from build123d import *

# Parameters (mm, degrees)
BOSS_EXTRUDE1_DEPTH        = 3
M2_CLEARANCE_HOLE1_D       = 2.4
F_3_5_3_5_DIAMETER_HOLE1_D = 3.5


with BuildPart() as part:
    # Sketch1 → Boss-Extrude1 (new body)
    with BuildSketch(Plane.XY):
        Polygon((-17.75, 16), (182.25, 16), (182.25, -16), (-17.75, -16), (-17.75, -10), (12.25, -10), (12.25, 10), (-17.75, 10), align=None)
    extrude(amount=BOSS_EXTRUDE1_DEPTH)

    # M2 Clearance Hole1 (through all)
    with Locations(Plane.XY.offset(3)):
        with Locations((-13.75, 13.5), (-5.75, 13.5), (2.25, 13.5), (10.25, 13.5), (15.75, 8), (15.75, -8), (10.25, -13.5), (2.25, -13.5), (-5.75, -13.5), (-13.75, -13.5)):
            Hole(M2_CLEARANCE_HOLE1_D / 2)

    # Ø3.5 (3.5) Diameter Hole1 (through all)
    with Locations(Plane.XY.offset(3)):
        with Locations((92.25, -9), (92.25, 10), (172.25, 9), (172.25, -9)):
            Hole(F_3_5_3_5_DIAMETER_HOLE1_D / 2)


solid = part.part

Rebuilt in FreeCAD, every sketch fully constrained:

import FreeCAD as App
import Part
import Sketcher
Q = App.Units.Quantity


def add_polygon(sketch, points):
    """Adds a closed chain of lines whose ends are joined by coincident constraints."""
    first, n = sketch.GeometryCount, len(points)
    for a, b in zip(points, points[1:] + points[:1]):
        sketch.addGeometry(Part.LineSegment(App.Vector(*a, 0), App.Vector(*b, 0)), False)
    for i in range(n):
        sketch.addConstraint(Sketcher.Constraint("Coincident", first + i, 2, first + (i + 1) % n, 1))

doc = App.newDocument("Part")
params = doc.addObject("Spreadsheet::Sheet", "Params")
for row, (alias, value) in enumerate([
    ("sketch1_width", "200 mm"),
    ("sketch1_width2", "30 mm"),
    ("sketch1_height", "6 mm"),
    ("sketch1_height2", "20 mm"),
    ("pad1_length", "3 mm"),
    ("sketch2_diameter", "2.4 mm"),
    ("hole_diameter", "2.4 mm"),
    ("sketch3_diameter", "3.5 mm"),
    ("hole2_diameter", "3.5 mm"),
], start=1):
    params.set(f"A{row}", alias)
    params.set(f"B{row}", "=" + value)
    params.setAlias(f"B{row}", alias)

body = doc.addObject("PartDesign::Body", "Body")

# Sketch on XY plane
sketch1 = doc.addObject("Sketcher::SketchObject", "Sketch")
body.addObject(sketch1)
sketch1.AttachmentSupport = (doc.XY_Plane, [""])
sketch1.MapMode = "FlatFace"
add_polygon(sketch1, [(182, 16), (-18, 16), (-18, 10), (12, 10), (12, -10), (-18, -10), (-18, -16), (182, -16)])  # lines 0-7
sketch1.addConstraint([
    Sketcher.Constraint("Horizontal", 0),
    Sketcher.Constraint("Vertical", 1),
    Sketcher.Constraint("Horizontal", 2),
    Sketcher.Constraint("Vertical", 3),
    Sketcher.Constraint("Horizontal", 4),
    Sketcher.Constraint("Vertical", 5),
    Sketcher.Constraint("Horizontal", 6),
    Sketcher.Constraint("Vertical", 7),
    Sketcher.Constraint("Symmetric", 1, 2, 4, 2, -1),
    Sketcher.Constraint("Equal", 1, 5),
    Sketcher.Constraint("DistanceX", 0, 2, 0, 1, Q("200 mm")),
    Sketcher.Constraint("DistanceX", 2, 1, 2, 2, Q("30 mm")),
    Sketcher.Constraint("DistanceY", 1, 2, 1, 1, Q("6 mm")),
    Sketcher.Constraint("DistanceY", 3, 2, 3, 1, Q("20 mm")),
    Sketcher.Constraint("DistanceX", 0, 2, -1, 1, Q("17.75 mm")),
])
sketch1.setExpression("Constraints[18]", "Params.sketch1_width")
sketch1.setExpression("Constraints[19]", "Params.sketch1_width2")
sketch1.setExpression("Constraints[20]", "Params.sketch1_height")
sketch1.setExpression("Constraints[21]", "Params.sketch1_height2")
pad1 = doc.addObject("PartDesign::Pad", "Pad")
body.addObject(pad1)
pad1.Profile = sketch1
pad1.setExpression("Length", "Params.pad1_length")

# Sketch on XY plane
sketch2 = doc.addObject("Sketcher::SketchObject", "Sketch001")
body.addObject(sketch2)
sketch2.AttachmentSupport = (doc.XY_Plane, [""])
sketch2.MapMode = "FlatFace"
sketch2.AttachmentOffset = App.Placement(App.Vector(0, 0, 3), App.Rotation())
sketch2.addGeometry([
    Part.Circle(App.Vector(-13.8, 13.5, 0), App.Vector(0, 0, 1), 1.2),  # 0
    Part.Circle(App.Vector(-5.8, 13.5, 0), App.Vector(0, 0, 1), 1.2),  # 1
    Part.Circle(App.Vector(2.2, 13.5, 0), App.Vector(0, 0, 1), 1.2),  # 2
    Part.Circle(App.Vector(10.2, 13.5, 0), App.Vector(0, 0, 1), 1.2),  # 3
    Part.Circle(App.Vector(15.8, 8, 0), App.Vector(0, 0, 1), 1.2),  # 4
    Part.Circle(App.Vector(15.8, -8, 0), App.Vector(0, 0, 1), 1.2),  # 5
    Part.Circle(App.Vector(10.2, -13.5, 0), App.Vector(0, 0, 1), 1.2),  # 6
    Part.Circle(App.Vector(2.2, -13.5, 0), App.Vector(0, 0, 1), 1.2),  # 7
    Part.Circle(App.Vector(-5.8, -13.5, 0), App.Vector(0, 0, 1), 1.2),  # 8
    Part.Circle(App.Vector(-13.8, -13.5, 0), App.Vector(0, 0, 1), 1.2),  # 9
], False)
sketch2.addConstraint([
    Sketcher.Constraint("Equal", 0, 1),
    Sketcher.Constraint("Equal", 1, 2),
    Sketcher.Constraint("Equal", 2, 3),
    Sketcher.Constraint("Equal", 3, 4),
    Sketcher.Constraint("Equal", 4, 5),
    Sketcher.Constraint("Equal", 5, 6),
    Sketcher.Constraint("Equal", 6, 7),
    Sketcher.Constraint("Equal", 7, 8),
    Sketcher.Constraint("Equal", 8, 9),
    Sketcher.Constraint("Symmetric", 4, 3, 5, 3, -1),
    Sketcher.Constraint("Symmetric", 3, 3, 6, 3, -1),
    Sketcher.Constraint("Symmetric", 2, 3, 7, 3, -1),
    Sketcher.Constraint("Symmetric", 1, 3, 8, 3, -1),
    Sketcher.Constraint("Symmetric", 0, 3, 9, 3, -1),
    Sketcher.Constraint("Horizontal", 0, 3, 1, 3),
    Sketcher.Constraint("Horizontal", 1, 3, 2, 3),
    Sketcher.Constraint("Horizontal", 2, 3, 3, 3),
    Sketcher.Constraint("Diameter", 0, Q("2.4 mm")),
    Sketcher.Constraint("DistanceY", -1, 1, 4, 3, Q("8 mm")),
    Sketcher.Constraint("DistanceX", 0, 3, 1, 3, Q("8 mm")),
    Sketcher.Constraint("DistanceX", 1, 3, 2, 3, Q("8 mm")),
    Sketcher.Constraint("DistanceX", 2, 3, 3, 3, Q("8 mm")),
    Sketcher.Constraint("DistanceY", 6, 3, 3, 3, Q("27 mm")),
    Sketcher.Constraint("DistanceX", 3, 3, 4, 3, Q("5.5 mm")),
    Sketcher.Constraint("DistanceX", 0, 3, -1, 1, Q("13.75 mm")),
])
sketch2.setExpression("Constraints[17]", "Params.sketch2_diameter")
doc.recompute()
hole = doc.addObject("PartDesign::Hole", "Hole")
body.addObject(hole)
hole.Profile = sketch2
hole.ThreadType = "None"
hole.setExpression("Diameter", "Params.hole_diameter")
hole.DepthType = "ThroughAll"

# Sketch on XY plane
sketch3 = doc.addObject("Sketcher::SketchObject", "Sketch002")
body.addObject(sketch3)
sketch3.AttachmentSupport = (doc.XY_Plane, [""])
sketch3.MapMode = "FlatFace"
sketch3.AttachmentOffset = App.Placement(App.Vector(0, 0, 3), App.Rotation())
sketch3.addGeometry([
    Part.Circle(App.Vector(92.2, -9, 0), App.Vector(0, 0, 1), 1.8),
    Part.Circle(App.Vector(92.2, 10, 0), App.Vector(0, 0, 1), 1.8),
    Part.Circle(App.Vector(172.2, 9, 0), App.Vector(0, 0, 1), 1.8),
    Part.Circle(App.Vector(172.2, -9, 0), App.Vector(0, 0, 1), 1.8),
], False)
sketch3.addConstraint([
    Sketcher.Constraint("Equal", 0, 1),
    Sketcher.Constraint("Equal", 1, 2),
    Sketcher.Constraint("Equal", 2, 3),
    Sketcher.Constraint("Symmetric", 2, 3, 3, 3, -1),
    Sketcher.Constraint("Horizontal", 0, 3, 3, 3),
    Sketcher.Constraint("Vertical", 0, 3, 1, 3),
    Sketcher.Constraint("Diameter", 0, Q("3.5 mm")),
    Sketcher.Constraint("DistanceY", 0, 3, -1, 1, Q("9 mm")),
    Sketcher.Constraint("DistanceY", -1, 1, 1, 3, Q("10 mm")),
    Sketcher.Constraint("DistanceX", 1, 3, 2, 3, Q("80 mm")),
    Sketcher.Constraint("DistanceX", -1, 1, 0, 3, Q("92.25 mm")),
])
sketch3.setExpression("Constraints[6]", "Params.sketch3_diameter")
doc.recompute()
hole2 = doc.addObject("PartDesign::Hole", "Hole001")
body.addObject(hole2)
hole2.Profile = sketch3
hole2.ThreadType = "None"
hole2.setExpression("Diameter", "Params.hole2_diameter")
hole2.DepthType = "ThroughAll"

doc.recompute()
